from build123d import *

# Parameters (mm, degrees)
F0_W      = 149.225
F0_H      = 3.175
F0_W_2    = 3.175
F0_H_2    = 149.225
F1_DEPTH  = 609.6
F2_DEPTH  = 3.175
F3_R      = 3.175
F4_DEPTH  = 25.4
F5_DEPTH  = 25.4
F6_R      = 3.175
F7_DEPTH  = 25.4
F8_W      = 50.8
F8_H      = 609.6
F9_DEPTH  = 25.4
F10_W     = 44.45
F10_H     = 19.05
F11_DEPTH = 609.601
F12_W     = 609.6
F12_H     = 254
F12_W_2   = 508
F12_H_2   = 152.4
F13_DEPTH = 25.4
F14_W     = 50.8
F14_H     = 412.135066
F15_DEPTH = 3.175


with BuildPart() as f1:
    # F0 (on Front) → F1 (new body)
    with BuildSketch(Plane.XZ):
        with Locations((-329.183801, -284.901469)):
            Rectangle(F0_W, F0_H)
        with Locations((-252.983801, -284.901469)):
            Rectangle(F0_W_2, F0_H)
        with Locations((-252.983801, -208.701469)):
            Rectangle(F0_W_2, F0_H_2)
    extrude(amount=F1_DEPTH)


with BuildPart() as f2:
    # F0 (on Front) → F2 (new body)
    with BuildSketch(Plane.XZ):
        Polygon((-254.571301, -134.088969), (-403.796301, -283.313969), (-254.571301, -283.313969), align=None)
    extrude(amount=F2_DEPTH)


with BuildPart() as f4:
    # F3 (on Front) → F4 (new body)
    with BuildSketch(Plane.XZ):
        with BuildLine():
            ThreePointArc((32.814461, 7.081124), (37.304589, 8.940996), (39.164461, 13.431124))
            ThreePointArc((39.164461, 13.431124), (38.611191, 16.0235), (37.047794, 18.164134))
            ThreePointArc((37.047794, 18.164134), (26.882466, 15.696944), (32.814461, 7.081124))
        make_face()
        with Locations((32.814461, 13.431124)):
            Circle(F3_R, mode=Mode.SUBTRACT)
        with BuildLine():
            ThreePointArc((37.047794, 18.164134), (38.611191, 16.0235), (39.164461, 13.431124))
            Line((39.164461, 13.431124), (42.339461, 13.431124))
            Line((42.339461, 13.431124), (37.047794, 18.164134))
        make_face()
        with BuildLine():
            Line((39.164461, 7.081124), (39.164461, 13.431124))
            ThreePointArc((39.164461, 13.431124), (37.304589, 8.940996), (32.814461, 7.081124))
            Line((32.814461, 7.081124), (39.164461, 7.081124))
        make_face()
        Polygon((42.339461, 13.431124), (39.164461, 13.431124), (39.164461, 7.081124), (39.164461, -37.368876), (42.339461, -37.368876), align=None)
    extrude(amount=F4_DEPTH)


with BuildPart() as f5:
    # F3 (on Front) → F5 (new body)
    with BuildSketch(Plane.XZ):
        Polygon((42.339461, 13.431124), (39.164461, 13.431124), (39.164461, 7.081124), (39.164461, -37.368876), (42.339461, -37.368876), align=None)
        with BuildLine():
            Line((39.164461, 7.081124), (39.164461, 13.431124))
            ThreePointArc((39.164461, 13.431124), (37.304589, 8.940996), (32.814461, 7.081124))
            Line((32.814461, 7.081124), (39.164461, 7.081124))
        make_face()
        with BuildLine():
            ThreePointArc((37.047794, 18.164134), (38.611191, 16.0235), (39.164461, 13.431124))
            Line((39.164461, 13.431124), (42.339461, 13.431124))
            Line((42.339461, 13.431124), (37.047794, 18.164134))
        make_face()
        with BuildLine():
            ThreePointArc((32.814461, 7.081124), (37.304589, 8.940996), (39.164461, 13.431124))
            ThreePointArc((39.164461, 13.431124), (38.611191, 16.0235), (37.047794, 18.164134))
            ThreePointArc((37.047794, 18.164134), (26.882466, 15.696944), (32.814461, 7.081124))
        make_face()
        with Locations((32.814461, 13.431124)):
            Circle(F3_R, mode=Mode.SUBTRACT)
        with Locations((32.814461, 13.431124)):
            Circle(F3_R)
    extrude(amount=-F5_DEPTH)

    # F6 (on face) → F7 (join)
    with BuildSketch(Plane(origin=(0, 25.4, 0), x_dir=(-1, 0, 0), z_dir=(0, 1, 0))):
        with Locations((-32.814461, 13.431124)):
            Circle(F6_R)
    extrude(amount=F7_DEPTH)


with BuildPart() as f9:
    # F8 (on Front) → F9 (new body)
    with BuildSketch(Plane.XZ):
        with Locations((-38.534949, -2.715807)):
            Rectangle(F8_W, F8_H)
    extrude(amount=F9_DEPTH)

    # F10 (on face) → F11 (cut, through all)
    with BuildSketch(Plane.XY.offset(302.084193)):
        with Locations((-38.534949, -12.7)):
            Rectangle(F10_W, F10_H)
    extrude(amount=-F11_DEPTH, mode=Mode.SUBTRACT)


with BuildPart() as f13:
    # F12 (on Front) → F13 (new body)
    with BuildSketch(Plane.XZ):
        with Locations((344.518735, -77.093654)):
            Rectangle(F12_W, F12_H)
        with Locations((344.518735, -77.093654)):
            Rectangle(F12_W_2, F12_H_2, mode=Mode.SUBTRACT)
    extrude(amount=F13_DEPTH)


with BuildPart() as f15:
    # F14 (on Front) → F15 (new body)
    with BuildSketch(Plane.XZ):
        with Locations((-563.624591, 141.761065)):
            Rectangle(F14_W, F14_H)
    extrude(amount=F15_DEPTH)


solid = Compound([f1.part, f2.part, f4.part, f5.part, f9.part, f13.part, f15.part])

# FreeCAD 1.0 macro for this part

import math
import FreeCAD as App
import Part
import Sketcher

V = App.Vector
Q = App.Units.Quantity

doc = App.newDocument("Part")
body = doc.addObject("PartDesign::Body", "Body")

sketch1 = body.newObject("Sketcher::SketchObject", "Sketch")
sketch1.AttachmentSupport = (doc.getObject("XZ_Plane"), [""])
sketch1.MapMode = "FlatFace"
sketch1.addGeometry(Part.LineSegment(V(-403.8, -283.3, 0), V(-403.8, -286.5, 0)), False)
sketch1.addGeometry(Part.LineSegment(V(-403.8, -286.5, 0), V(-251.4, -286.5, 0)), False)
sketch1.addGeometry(Part.LineSegment(V(-251.4, -286.5, 0), V(-251.4, -134.1, 0)), False)
sketch1.addGeometry(Part.LineSegment(V(-251.4, -134.1, 0), V(-254.6, -134.1, 0)), False)
sketch1.addGeometry(Part.LineSegment(V(-254.6, -134.1, 0), V(-254.6, -283.3, 0)), False)
sketch1.addGeometry(Part.LineSegment(V(-254.6, -283.3, 0), V(-403.8, -283.3, 0)), False)
sketch1.addConstraint(Sketcher.Constraint("Coincident", 0, 2, 1, 1))
sketch1.addConstraint(Sketcher.Constraint("Coincident", 1, 2, 2, 1))
sketch1.addConstraint(Sketcher.Constraint("Coincident", 2, 2, 3, 1))
sketch1.addConstraint(Sketcher.Constraint("Coincident", 3, 2, 4, 1))
sketch1.addConstraint(Sketcher.Constraint("Coincident", 4, 2, 5, 1))
sketch1.addConstraint(Sketcher.Constraint("Coincident", 5, 2, 0, 1))
sketch1.addConstraint(Sketcher.Constraint("Vertical", 0))
sketch1.addConstraint(Sketcher.Constraint("Horizontal", 1))
sketch1.addConstraint(Sketcher.Constraint("Vertical", 2))
sketch1.addConstraint(Sketcher.Constraint("Horizontal", 3))
sketch1.addConstraint(Sketcher.Constraint("Vertical", 4))
sketch1.addConstraint(Sketcher.Constraint("Horizontal", 5))
sketch1.addConstraint(Sketcher.Constraint("Equal", 3, 0))
sketch1.addConstraint(Sketcher.Constraint("Equal", 1, 2))
sketch1.addConstraint(Sketcher.Constraint("DistanceX", 1, 1, 1, 2, Q("6 in")))
sketch1.addConstraint(Sketcher.Constraint("DistanceX", 3, 2, 3, 1, Q("0.125 in")))
sketch1.addConstraint(Sketcher.Constraint("DistanceX", 0, 2, -1, 1, Q("403.796301 mm")))
sketch1.addConstraint(Sketcher.Constraint("DistanceY", 0, 2, -1, 1, Q("286.488969 mm")))
pad1 = body.newObject("PartDesign::Pad", "Pad")
pad1.Profile = sketch1
pad1.Length = Q("24 in")
body2 = doc.addObject("PartDesign::Body", "Body001")

sketch2 = body2.newObject("Sketcher::SketchObject", "Sketch001")
sketch2.AttachmentSupport = (doc.getObject("XZ_Plane001"), [""])
sketch2.MapMode = "FlatFace"
sketch2.addGeometry(Part.LineSegment(V(-255, -134, 0), V(-404, -283, 0)), False)
sketch2.addGeometry(Part.LineSegment(V(-404, -283, 0), V(-255, -283, 0)), False)
sketch2.addGeometry(Part.LineSegment(V(-255, -283, 0), V(-255, -134, 0)), False)
sketch2.addConstraint(Sketcher.Constraint("Coincident", 0, 2, 1, 1))
sketch2.addConstraint(Sketcher.Constraint("Coincident", 1, 2, 2, 1))
sketch2.addConstraint(Sketcher.Constraint("Coincident", 2, 2, 0, 1))
sketch2.addConstraint(Sketcher.Constraint("Horizontal", 1))
sketch2.addConstraint(Sketcher.Constraint("Vertical", 2))
sketch2.addConstraint(Sketcher.Constraint("Equal", 1, 2))
sketch2.addConstraint(Sketcher.Constraint("DistanceX", 1, 1, 1, 2, Q("5.875 in")))
sketch2.addConstraint(Sketcher.Constraint("DistanceX", 0, 2, -1, 1, Q("403.796301 mm")))
sketch2.addConstraint(Sketcher.Constraint("DistanceY", 0, 2, -1, 1, Q("283.313969 mm")))
pad2 = body2.newObject("PartDesign::Pad", "Pad001")
pad2.Profile = sketch2
pad2.Length = Q("0.125 in")
body3 = doc.addObject("PartDesign::Body", "Body002")

sketch3 = body3.newObject("Sketcher::SketchObject", "Sketch002")
sketch3.AttachmentSupport = (doc.getObject("XZ_Plane002"), [""])
sketch3.MapMode = "FlatFace"
sketch3.addGeometry(Part.LineSegment(V(42.3, 13.4, 0), V(37, 18.2, 0)), False)
sketch3.addGeometry(Part.ArcOfCircle(Part.Circle(V(32.8, 13.4, 0), V(0, 0, 1), 6.3), math.radians(48), math.radians(270)), False)
sketch3.addGeometry(Part.LineSegment(V(32.8, 7.1, 0), V(39.2, 7.1, 0)), False)
sketch3.addGeometry(Part.LineSegment(V(39.2, 7.1, 0), V(39.2, -37.4, 0)), False)
sketch3.addGeometry(Part.LineSegment(V(39.2, -37.4, 0), V(42.3, -37.4, 0)), False)
sketch3.addGeometry(Part.LineSegment(V(42.3, -37.4, 0), V(42.3, 13.4, 0)), False)
sketch3.addGeometry(Part.Circle(V(32.8, 13.4, 0), V(0, 0, 1), 3.2), False)
sketch3.addConstraint(Sketcher.Constraint("Tangent", 0, 2, 1, 1))
sketch3.addConstraint(Sketcher.Constraint("Tangent", 1, 2, 2, 1))
sketch3.addConstraint(Sketcher.Constraint("Coincident", 2, 2, 3, 1))
sketch3.addConstraint(Sketcher.Constraint("Coincident", 3, 2, 4, 1))
sketch3.addConstraint(Sketcher.Constraint("Coincident", 4, 2, 5, 1))
sketch3.addConstraint(Sketcher.Constraint("Coincident", 5, 2, 0, 1))
sketch3.addConstraint(Sketcher.Constraint("Horizontal", 2))
sketch3.addConstraint(Sketcher.Constraint("Vertical", 3))
sketch3.addConstraint(Sketcher.Constraint("Horizontal", 4))
sketch3.addConstraint(Sketcher.Constraint("Vertical", 5))
sketch3.addConstraint(Sketcher.Constraint("Coincident", 6, 3, 1, 3))
sketch3.addConstraint(Sketcher.Constraint("Horizontal", 6, 3, 5, 2))
sketch3.addConstraint(Sketcher.Constraint("Diameter", 6, Q("0.25 in")))
sketch3.addConstraint(Sketcher.Constraint("DistanceY", 5, 1, 5, 2, Q("2 in")))
sketch3.addConstraint(Sketcher.Constraint("Radius", 1, Q("0.25 in")))
sketch3.addConstraint(Sketcher.Constraint("DistanceX", 2, 1, 2, 2, Q("0.25 in")))
sketch3.addConstraint(Sketcher.Constraint("DistanceX", 4, 1, 4, 2, Q("0.125 in")))
sketch3.addConstraint(Sketcher.Constraint("DistanceX", -1, 1, 1, 3, Q("32.81446 mm")))
sketch3.addConstraint(Sketcher.Constraint("DistanceY", -1, 1, 1, 3, Q("13.431124 mm")))
pad3 = body3.newObject("PartDesign::Pad", "Pad002")
pad3.Profile = sketch3
pad3.Length = Q("1 in")
body4 = doc.addObject("PartDesign::Body", "Body003")

sketch4 = body4.newObject("Sketcher::SketchObject", "Sketch003")
sketch4.AttachmentSupport = (doc.getObject("XZ_Plane003"), [""])
sketch4.MapMode = "FlatFace"
sketch4.addGeometry(Part.LineSegment(V(32.8, 7.1, 0), V(39.2, 7.1, 0)), False)
sketch4.addGeometry(Part.LineSegment(V(39.2, 7.1, 0), V(39.2, -37.4, 0)), False)
sketch4.addGeometry(Part.LineSegment(V(39.2, -37.4, 0), V(42.3, -37.4, 0)), False)
sketch4.addGeometry(Part.LineSegment(V(42.3, -37.4, 0), V(42.3, 13.4, 0)), False)
sketch4.addGeometry(Part.LineSegment(V(42.3, 13.4, 0), V(37, 18.2, 0)), False)
sketch4.addGeometry(Part.ArcOfCircle(Part.Circle(V(32.8, 13.4, 0), V(0, 0, 1), 6.3), math.radians(48), math.radians(270)), False)
sketch4.addConstraint(Sketcher.Constraint("Coincident", 0, 2, 1, 1))
sketch4.addConstraint(Sketcher.Constraint("Coincident", 1, 2, 2, 1))
sketch4.addConstraint(Sketcher.Constraint("Coincident", 2, 2, 3, 1))
sketch4.addConstraint(Sketcher.Constraint("Coincident", 3, 2, 4, 1))
sketch4.addConstraint(Sketcher.Constraint("Tangent", 4, 2, 5, 1))
sketch4.addConstraint(Sketcher.Constraint("Tangent", 5, 2, 0, 1))
sketch4.addConstraint(Sketcher.Constraint("Horizontal", 0))
sketch4.addConstraint(Sketcher.Constraint("Vertical", 1))
sketch4.addConstraint(Sketcher.Constraint("Horizontal", 2))
sketch4.addConstraint(Sketcher.Constraint("Vertical", 3))
sketch4.addConstraint(Sketcher.Constraint("Horizontal", 5, 3, 3, 2))
sketch4.addConstraint(Sketcher.Constraint("DistanceY", 3, 1, 3, 2, Q("2 in")))
sketch4.addConstraint(Sketcher.Constraint("Radius", 5, Q("0.25 in")))
sketch4.addConstraint(Sketcher.Constraint("DistanceX", 0, 1, 0, 2, Q("0.25 in")))
sketch4.addConstraint(Sketcher.Constraint("DistanceX", 2, 1, 2, 2, Q("0.125 in")))
sketch4.addConstraint(Sketcher.Constraint("DistanceX", -1, 1, 5, 3, Q("32.81446 mm")))
sketch4.addConstraint(Sketcher.Constraint("DistanceY", -1, 1, 5, 3, Q("13.431124 mm")))
pad4 = body4.newObject("PartDesign::Pad", "Pad003")
pad4.Profile = sketch4
pad4.Length = Q("1 in")
pad4.Reversed = True

sketch5 = body4.newObject("Sketcher::SketchObject", "Sketch004")
sketch5.AttachmentSupport = (doc.getObject("XZ_Plane003"), [""])
sketch5.MapMode = "FlatFace"
sketch5.AttachmentOffset = App.Placement(V(0, 0, -1 * 25.4), App.Rotation())
sketch5.addGeometry(Part.Circle(V(32.8, 13.4, 0), V(0, 0, 1), 3.2), False)
sketch5.addConstraint(Sketcher.Constraint("Diameter", 0, Q("0.25 in")))
sketch5.addConstraint(Sketcher.Constraint("DistanceX", -1, 1, 0, 3, Q("32.814461 mm")))
sketch5.addConstraint(Sketcher.Constraint("DistanceY", -1, 1, 0, 3, Q("13.431124 mm")))
pad5 = body4.newObject("PartDesign::Pad", "Pad004")
pad5.Profile = sketch5
pad5.Length = Q("1 in")
pad5.Reversed = True
body5 = doc.addObject("PartDesign::Body", "Body004")

sketch6 = body5.newObject("Sketcher::SketchObject", "Sketch005")
sketch6.AttachmentSupport = (doc.getObject("XZ_Plane004"), [""])
sketch6.MapMode = "FlatFace"
sketch6.addGeometry(Part.LineSegment(V(-64, 302, 0), V(-64, -308, 0)), False)
sketch6.addGeometry(Part.LineSegment(V(-64, -308, 0), V(-13, -308, 0)), False)
sketch6.addGeometry(Part.LineSegment(V(-13, -308, 0), V(-13, 302, 0)), False)
sketch6.addGeometry(Part.LineSegment(V(-13, 302, 0), V(-64, 302, 0)), False)
sketch6.addConstraint(Sketcher.Constraint("Coincident", 0, 2, 1, 1))
sketch6.addConstraint(Sketcher.Constraint("Coincident", 1, 2, 2, 1))
sketch6.addConstraint(Sketcher.Constraint("Coincident", 2, 2, 3, 1))
sketch6.addConstraint(Sketcher.Constraint("Coincident", 3, 2, 0, 1))
sketch6.addConstraint(Sketcher.Constraint("Vertical", 0))
sketch6.addConstraint(Sketcher.Constraint("Horizontal", 1))
sketch6.addConstraint(Sketcher.Constraint("Vertical", 2))
sketch6.addConstraint(Sketcher.Constraint("Horizontal", 3))
sketch6.addConstraint(Sketcher.Constraint("DistanceX", 1, 1, 1, 2, Q("2 in")))
sketch6.addConstraint(Sketcher.Constraint("DistanceY", 0, 2, 0, 1, Q("24 in")))
sketch6.addConstraint(Sketcher.Constraint("DistanceX", 0, 2, -1, 1, Q("63.934949 mm")))
sketch6.addConstraint(Sketcher.Constraint("DistanceY", 0, 2, -1, 1, Q("307.515807 mm")))
pad6 = body5.newObject("PartDesign::Pad", "Pad005")
pad6.Profile = sketch6
pad6.Length = Q("1 in")

sketch7 = body5.newObject("Sketcher::SketchObject", "Sketch006")
sketch7.AttachmentSupport = (doc.getObject("XY_Plane004"), [""])
sketch7.MapMode = "FlatFace"
sketch7.AttachmentOffset = App.Placement(V(0, 0, 302.084193), App.Rotation())
sketch7.addGeometry(Part.LineSegment(V(-61, -3, 0), V(-61, -22, 0)), False)
sketch7.addGeometry(Part.LineSegment(V(-61, -22, 0), V(-16, -22, 0)), False)
sketch7.addGeometry(Part.LineSegment(V(-16, -22, 0), V(-16, -3, 0)), False)
sketch7.addGeometry(Part.LineSegment(V(-16, -3, 0), V(-61, -3, 0)), False)
sketch7.addConstraint(Sketcher.Constraint("Coincident", 0, 2, 1, 1))
sketch7.addConstraint(Sketcher.Constraint("Coincident", 1, 2, 2, 1))
sketch7.addConstraint(Sketcher.Constraint("Coincident", 2, 2, 3, 1))
sketch7.addConstraint(Sketcher.Constraint("Coincident", 3, 2, 0, 1))
sketch7.addConstraint(Sketcher.Constraint("Vertical", 0))
sketch7.addConstraint(Sketcher.Constraint("Horizontal", 1))
sketch7.addConstraint(Sketcher.Constraint("Vertical", 2))
sketch7.addConstraint(Sketcher.Constraint("Horizontal", 3))
sketch7.addConstraint(Sketcher.Constraint("DistanceX", 1, 1, 1, 2, Q("1.75 in")))
sketch7.addConstraint(Sketcher.Constraint("DistanceY", 0, 2, 0, 1, Q("0.75 in")))
sketch7.addConstraint(Sketcher.Constraint("DistanceY", 0, 2, -1, 1, Q("0.875 in")))
sketch7.addConstraint(Sketcher.Constraint("DistanceX", 0, 2, -1, 1, Q("60.759949 mm")))
pocket1 = body5.newObject("PartDesign::Pocket", "Pocket")
pocket1.Profile = sketch7
pocket1.Type = "ThroughAll"
body6 = doc.addObject("PartDesign::Body", "Body005")

sketch8 = body6.newObject("Sketcher::SketchObject", "Sketch007")
sketch8.AttachmentSupport = (doc.getObject("XZ_Plane005"), [""])
sketch8.MapMode = "FlatFace"
sketch8.addGeometry(Part.LineSegment(V(40, 50, 0), V(40, -204, 0)), False)
sketch8.addGeometry(Part.LineSegment(V(40, -204, 0), V(649, -204, 0)), False)
sketch8.addGeometry(Part.LineSegment(V(649, -204, 0), V(649, 50, 0)), False)
sketch8.addGeometry(Part.LineSegment(V(649, 50, 0), V(40, 50, 0)), False)
sketch8.addGeometry(Part.LineSegment(V(599, -153, 0), V(91, -153, 0)), False)
sketch8.addGeometry(Part.LineSegment(V(91, -153, 0), V(91, -1, 0)), False)
sketch8.addGeometry(Part.LineSegment(V(91, -1, 0), V(599, -1, 0)), False)
sketch8.addGeometry(Part.LineSegment(V(599, -1, 0), V(599, -153, 0)), False)
sketch8.addConstraint(Sketcher.Constraint("Coincident", 0, 2, 1, 1))
sketch8.addConstraint(Sketcher.Constraint("Coincident", 1, 2, 2, 1))
sketch8.addConstraint(Sketcher.Constraint("Coincident", 2, 2, 3, 1))
sketch8.addConstraint(Sketcher.Constraint("Coincident", 3, 2, 0, 1))
sketch8.addConstraint(Sketcher.Constraint("Coincident", 4, 2, 5, 1))
sketch8.addConstraint(Sketcher.Constraint("Coincident", 5, 2, 6, 1))
sketch8.addConstraint(Sketcher.Constraint("Coincident", 6, 2, 7, 1))
sketch8.addConstraint(Sketcher.Constraint("Coincident", 7, 2, 4, 1))
sketch8.addConstraint(Sketcher.Constraint("Vertical", 0))
sketch8.addConstraint(Sketcher.Constraint("Horizontal", 1))
sketch8.addConstraint(Sketcher.Constraint("Vertical", 2))
sketch8.addConstraint(Sketcher.Constraint("Horizontal", 3))
sketch8.addConstraint(Sketcher.Constraint("Horizontal", 4))
sketch8.addConstraint(Sketcher.Constraint("Vertical", 5))
sketch8.addConstraint(Sketcher.Constraint("Horizontal", 6))
sketch8.addConstraint(Sketcher.Constraint("Vertical", 7))
sketch8.addConstraint(Sketcher.Constraint("DistanceX", 1, 1, 1, 2, Q("24 in")))
sketch8.addConstraint(Sketcher.Constraint("DistanceX", 4, 2, 4, 1, Q("20 in")))
sketch8.addConstraint(Sketcher.Constraint("DistanceY", 0, 2, 0, 1, Q("10 in")))
sketch8.addConstraint(Sketcher.Constraint("DistanceY", 5, 1, 5, 2, Q("6 in")))
sketch8.addConstraint(Sketcher.Constraint("DistanceX", 0, 2, 4, 2, Q("2 in")))
sketch8.addConstraint(Sketcher.Constraint("DistanceY", 0, 2, 4, 2, Q("2 in")))
sketch8.addConstraint(Sketcher.Constraint("DistanceX", -1, 1, 0, 2, Q("39.718735 mm")))
sketch8.addConstraint(Sketcher.Constraint("DistanceY", 0, 2, -1, 1, Q("204.093654 mm")))
pad7 = body6.newObject("PartDesign::Pad", "Pad006")
pad7.Profile = sketch8
pad7.Length = Q("1 in")
body7 = doc.addObject("PartDesign::Body", "Body006")

sketch9 = body7.newObject("Sketcher::SketchObject", "Sketch008")
sketch9.AttachmentSupport = (doc.getObject("XZ_Plane006"), [""])
sketch9.MapMode = "FlatFace"
sketch9.addGeometry(Part.LineSegment(V(-589, 348, 0), V(-589, -64, 0)), False)
sketch9.addGeometry(Part.LineSegment(V(-589, -64, 0), V(-538, -64, 0)), False)
sketch9.addGeometry(Part.LineSegment(V(-538, -64, 0), V(-538, 348, 0)), False)
sketch9.addGeometry(Part.LineSegment(V(-538, 348, 0), V(-589, 348, 0)), False)
sketch9.addConstraint(Sketcher.Constraint("Coincident", 0, 2, 1, 1))
sketch9.addConstraint(Sketcher.Constraint("Coincident", 1, 2, 2, 1))
sketch9.addConstraint(Sketcher.Constraint("Coincident", 2, 2, 3, 1))
sketch9.addConstraint(Sketcher.Constraint("Coincident", 3, 2, 0, 1))
sketch9.addConstraint(Sketcher.Constraint("Vertical", 0))
sketch9.addConstraint(Sketcher.Constraint("Horizontal", 1))
sketch9.addConstraint(Sketcher.Constraint("Vertical", 2))
sketch9.addConstraint(Sketcher.Constraint("Horizontal", 3))
sketch9.addConstraint(Sketcher.Constraint("DistanceX", 1, 1, 1, 2, Q("2 in")))
sketch9.addConstraint(Sketcher.Constraint("DistanceY", -1, 1, 2, 2, Q("347.828598 mm")))
sketch9.addConstraint(Sketcher.Constraint("DistanceY", 0, 2, 0, 1, Q("412.135066 mm")))
sketch9.addConstraint(Sketcher.Constraint("DistanceX", 0, 2, -1, 1, Q("589.024591 mm")))
pad8 = body7.newObject("PartDesign::Pad", "Pad007")
pad8.Profile = sketch9
pad8.Length = Q("0.125 in")

doc.recompute()
